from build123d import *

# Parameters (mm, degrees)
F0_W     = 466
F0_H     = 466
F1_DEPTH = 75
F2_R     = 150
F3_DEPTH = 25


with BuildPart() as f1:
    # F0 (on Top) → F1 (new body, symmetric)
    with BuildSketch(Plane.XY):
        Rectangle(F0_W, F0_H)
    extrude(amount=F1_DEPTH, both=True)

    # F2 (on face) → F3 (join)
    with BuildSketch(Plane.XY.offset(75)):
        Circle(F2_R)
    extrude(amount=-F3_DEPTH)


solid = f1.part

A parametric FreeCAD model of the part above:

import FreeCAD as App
import Part
import Sketcher
Q = App.Units.Quantity

doc = App.newDocument("Part")
params = doc.addObject("Spreadsheet::Sheet", "Params")
for row, (alias, value) in enumerate([
    ("sketch1_width", "466 mm"),
    ("pad1_length", "150 mm"),
    ("sketch2_diameter", "300 mm"),
    ("pad2_length", "25 mm"),
], start=1):
    params.set(f"A{row}", alias)
    params.set(f"B{row}", "=" + value)
    params.setAlias(f"B{row}", alias)

body = doc.addObject("PartDesign::Body", "Body")

# Sketch on XY plane
sketch1 = body.newObject("Sketcher::SketchObject", "Sketch")
sketch1.AttachmentSupport = (doc.getObject("XY_Plane"), [""])
sketch1.MapMode = "FlatFace"
sketch1.addGeometry([
    Part.LineSegment(App.Vector(-233, 233, 0), App.Vector(-233, -233, 0)),
    Part.LineSegment(App.Vector(-233, -233, 0), App.Vector(233, -233, 0)),
    Part.LineSegment(App.Vector(233, -233, 0), App.Vector(233, 233, 0)),
    Part.LineSegment(App.Vector(233, 233, 0), App.Vector(-233, 233, 0)),
], False)
sketch1.addConstraint([
    Sketcher.Constraint("Coincident", 0, 2, 1, 1),
    Sketcher.Constraint("Coincident", 1, 2, 2, 1),
    Sketcher.Constraint("Coincident", 2, 2, 3, 1),
    Sketcher.Constraint("Coincident", 3, 2, 0, 1),
    Sketcher.Constraint("Vertical", 0),
    Sketcher.Constraint("Horizontal", 1),
    Sketcher.Constraint("Vertical", 2),
    Sketcher.Constraint("Horizontal", 3),
    Sketcher.Constraint("Symmetric", 0, 2, 2, 2, -1, 1),
    Sketcher.Constraint("Equal", 3, 0),
    Sketcher.Constraint("DistanceX", 1, 1, 1, 2, Q("466 mm")),
])
sketch1.setExpression("Constraints[10]", "Params.sketch1_width")
pad1 = body.newObject("PartDesign::Pad", "Pad")
pad1.Profile = sketch1
pad1.setExpression("Length", "Params.pad1_length")
pad1.Midplane = True

# Sketch on XY plane
sketch2 = body.newObject("Sketcher::SketchObject", "Sketch001")
sketch2.AttachmentSupport = (doc.getObject("XY_Plane"), [""])
sketch2.MapMode = "FlatFace"
sketch2.AttachmentOffset = App.Placement(App.Vector(0, 0, 75), App.Rotation())
sketch2.addGeometry(Part.Circle(App.Vector(0, 0, 0), App.Vector(0, 0, 1), 150), False)
sketch2.addConstraint([
    Sketcher.Constraint("Coincident", 0, 3, -1, 1),
    Sketcher.Constraint("Diameter", 0, Q("300 mm")),
])
sketch2.setExpression("Constraints[1]", "Params.sketch2_diameter")
pad2 = body.newObject("PartDesign::Pad", "Pad001")
pad2.Profile = sketch2
pad2.setExpression("Length", "Params.pad2_length")
pad2.Reversed = True

doc.recompute()
